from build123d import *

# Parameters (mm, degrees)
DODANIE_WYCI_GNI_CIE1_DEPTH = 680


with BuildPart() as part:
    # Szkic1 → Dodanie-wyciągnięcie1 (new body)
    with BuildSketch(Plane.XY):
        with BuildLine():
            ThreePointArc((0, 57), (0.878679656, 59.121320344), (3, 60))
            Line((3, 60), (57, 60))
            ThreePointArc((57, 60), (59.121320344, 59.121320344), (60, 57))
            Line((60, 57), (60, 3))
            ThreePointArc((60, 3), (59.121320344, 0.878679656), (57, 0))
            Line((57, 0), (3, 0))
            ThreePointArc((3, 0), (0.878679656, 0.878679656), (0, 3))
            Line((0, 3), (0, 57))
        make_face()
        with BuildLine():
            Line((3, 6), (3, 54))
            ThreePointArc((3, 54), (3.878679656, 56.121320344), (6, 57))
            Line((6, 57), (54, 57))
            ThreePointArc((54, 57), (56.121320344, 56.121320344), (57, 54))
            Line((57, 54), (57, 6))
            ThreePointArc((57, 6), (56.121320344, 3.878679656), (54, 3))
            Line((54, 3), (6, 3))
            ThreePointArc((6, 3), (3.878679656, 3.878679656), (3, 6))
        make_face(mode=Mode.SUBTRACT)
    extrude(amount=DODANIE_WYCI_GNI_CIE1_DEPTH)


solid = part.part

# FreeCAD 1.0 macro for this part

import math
import FreeCAD as App
import Part
import Sketcher

doc = App.newDocument("Part")
params = doc.addObject("Spreadsheet::Sheet", "Params")
for row, (alias, value) in enumerate([
    ("sketch1_radius", "3 mm"),
    ("sketch1_width", "54 mm"),
    ("pad1_length", "680 mm"),
], start=1):
    params.set(f"A{row}", alias)
    params.set(f"B{row}", "=" + value)
    params.setAlias(f"B{row}", alias)

body = doc.addObject("PartDesign::Body", "Body")

sketch1 = doc.addObject("Sketcher::SketchObject", "Sketch")
body.addObject(sketch1)
sketch1.AttachmentSupport = (doc.XY_Plane, [""])
sketch1.MapMode = "FlatFace"
sketch1.addGeometry(Part.ArcOfCircle(Part.Circle(App.Vector(3, 57, 0), App.Vector(0, 0, 1), 3), math.radians(90), math.radians(180)), False)
sketch1.addGeometry(Part.LineSegment(App.Vector(0, 57, 0), App.Vector(0, 3, 0)), False)
sketch1.addGeometry(Part.ArcOfCircle(Part.Circle(App.Vector(3, 3, 0), App.Vector(0, 0, 1), 3), math.radians(180), math.radians(270)), False)
sketch1.addGeometry(Part.LineSegment(App.Vector(3, 0, 0), App.Vector(57, 0, 0)), False)
sketch1.addGeometry(Part.ArcOfCircle(Part.Circle(App.Vector(57, 3, 0), App.Vector(0, 0, 1), 3), math.radians(-90), math.radians(0)), False)
sketch1.addGeometry(Part.LineSegment(App.Vector(60, 3, 0), App.Vector(60, 57, 0)), False)
sketch1.addGeometry(Part.ArcOfCircle(Part.Circle(App.Vector(57, 57, 0), App.Vector(0, 0, 1), 3), math.radians(0), math.radians(90)), False)
sketch1.addGeometry(Part.LineSegment(App.Vector(57, 60, 0), App.Vector(3, 60, 0)), False)
sketch1.addGeometry(Part.LineSegment(App.Vector(3, 6, 0), App.Vector(3, 54, 0)), False)
sketch1.addGeometry(Part.ArcOfCircle(Part.Circle(App.Vector(6, 54, 0), App.Vector(0, 0, 1), 3), math.radians(90), math.radians(180)), False)
sketch1.addGeometry(Part.LineSegment(App.Vector(6, 57, 0), App.Vector(54, 57, 0)), False)
sketch1.addGeometry(Part.ArcOfCircle(Part.Circle(App.Vector(54, 54, 0), App.Vector(0, 0, 1), 3), math.radians(0), math.radians(90)), False)
sketch1.addGeometry(Part.LineSegment(App.Vector(57, 54, 0), App.Vector(57, 6, 0)), False)
sketch1.addGeometry(Part.ArcOfCircle(Part.Circle(App.Vector(54, 6, 0), App.Vector(0, 0, 1), 3), math.radians(-90), math.radians(0)), False)
sketch1.addGeometry(Part.LineSegment(App.Vector(54, 3, 0), App.Vector(6, 3, 0)), False)
sketch1.addGeometry(Part.ArcOfCircle(Part.Circle(App.Vector(6, 6, 0), App.Vector(0, 0, 1), 3), math.radians(180), math.radians(270)), False)
sketch1.addConstraint(Sketcher.Constraint("Tangent", 0, 2, 1, 1))
sketch1.addConstraint(Sketcher.Constraint("Tangent", 1, 2, 2, 1))
sketch1.addConstraint(Sketcher.Constraint("Tangent", 2, 2, 3, 1))
sketch1.addConstraint(Sketcher.Constraint("Tangent", 3, 2, 4, 1))
sketch1.addConstraint(Sketcher.Constraint("Tangent", 4, 2, 5, 1))
sketch1.addConstraint(Sketcher.Constraint("Tangent", 5, 2, 6, 1))
sketch1.addConstraint(Sketcher.Constraint("Tangent", 6, 2, 7, 1))
sketch1.addConstraint(Sketcher.Constraint("Tangent", 7, 2, 0, 1))
sketch1.addConstraint(Sketcher.Constraint("Tangent", 8, 2, 9, 2))
sketch1.addConstraint(Sketcher.Constraint("Tangent", 9, 1, 10, 1))
sketch1.addConstraint(Sketcher.Constraint("Tangent", 10, 2, 11, 2))
sketch1.addConstraint(Sketcher.Constraint("Tangent", 11, 1, 12, 1))
sketch1.addConstraint(Sketcher.Constraint("Tangent", 12, 2, 13, 2))
sketch1.addConstraint(Sketcher.Constraint("Tangent", 13, 1, 14, 1))
sketch1.addConstraint(Sketcher.Constraint("Tangent", 14, 2, 15, 2))
sketch1.addConstraint(Sketcher.Constraint("Tangent", 15, 1, 8, 1))
sketch1.addConstraint(Sketcher.Constraint("Vertical", 1))
sketch1.addConstraint(Sketcher.Constraint("Horizontal", 3))
sketch1.addConstraint(Sketcher.Constraint("Vertical", 5))
sketch1.addConstraint(Sketcher.Constraint("Horizontal", 7))
sketch1.addConstraint(Sketcher.Constraint("Vertical", 8))
sketch1.addConstraint(Sketcher.Constraint("Horizontal", 10))
sketch1.addConstraint(Sketcher.Constraint("Vertical", 12))
sketch1.addConstraint(Sketcher.Constraint("Horizontal", 14))
sketch1.addConstraint(Sketcher.Constraint("Equal", 0, 2))
sketch1.addConstraint(Sketcher.Constraint("Equal", 2, 4))
sketch1.addConstraint(Sketcher.Constraint("Equal", 4, 6))
sketch1.addConstraint(Sketcher.Constraint("Equal", 6, 9))
sketch1.addConstraint(Sketcher.Constraint("Equal", 9, 11))
sketch1.addConstraint(Sketcher.Constraint("Equal", 11, 13))
sketch1.addConstraint(Sketcher.Constraint("Equal", 13, 15))
sketch1.addConstraint(Sketcher.Constraint("PointOnObject", 0, 2, -2))
sketch1.addConstraint(Sketcher.Constraint("PointOnObject", 2, 2, -1))
sketch1.addConstraint(Sketcher.Constraint("Horizontal", 5, 2, 9, 1))
sketch1.addConstraint(Sketcher.Constraint("Horizontal", 4, 2, 13, 1))
sketch1.addConstraint(Sketcher.Constraint("Vertical", 7, 2, 8, 2))
sketch1.addConstraint(Sketcher.Constraint("Vertical", 6, 2, 11, 1))
sketch1.addConstraint(Sketcher.Constraint("Equal", 7, 1))
sketch1.addConstraint(Sketcher.Constraint("Radius", 0, 3.0))
sketch1.addConstraint(Sketcher.Constraint("DistanceX", 3, 1, 3, 2, 54.0))
sketch1.setExpression("Constraints[38]", "Params.sketch1_radius")
sketch1.setExpression("Constraints[39]", "Params.sketch1_width")
pad1 = doc.addObject("PartDesign::Pad", "Pad")
body.addObject(pad1)
pad1.Profile = sketch1
pad1.setExpression("Length", "Params.pad1_length")

doc.recompute()
